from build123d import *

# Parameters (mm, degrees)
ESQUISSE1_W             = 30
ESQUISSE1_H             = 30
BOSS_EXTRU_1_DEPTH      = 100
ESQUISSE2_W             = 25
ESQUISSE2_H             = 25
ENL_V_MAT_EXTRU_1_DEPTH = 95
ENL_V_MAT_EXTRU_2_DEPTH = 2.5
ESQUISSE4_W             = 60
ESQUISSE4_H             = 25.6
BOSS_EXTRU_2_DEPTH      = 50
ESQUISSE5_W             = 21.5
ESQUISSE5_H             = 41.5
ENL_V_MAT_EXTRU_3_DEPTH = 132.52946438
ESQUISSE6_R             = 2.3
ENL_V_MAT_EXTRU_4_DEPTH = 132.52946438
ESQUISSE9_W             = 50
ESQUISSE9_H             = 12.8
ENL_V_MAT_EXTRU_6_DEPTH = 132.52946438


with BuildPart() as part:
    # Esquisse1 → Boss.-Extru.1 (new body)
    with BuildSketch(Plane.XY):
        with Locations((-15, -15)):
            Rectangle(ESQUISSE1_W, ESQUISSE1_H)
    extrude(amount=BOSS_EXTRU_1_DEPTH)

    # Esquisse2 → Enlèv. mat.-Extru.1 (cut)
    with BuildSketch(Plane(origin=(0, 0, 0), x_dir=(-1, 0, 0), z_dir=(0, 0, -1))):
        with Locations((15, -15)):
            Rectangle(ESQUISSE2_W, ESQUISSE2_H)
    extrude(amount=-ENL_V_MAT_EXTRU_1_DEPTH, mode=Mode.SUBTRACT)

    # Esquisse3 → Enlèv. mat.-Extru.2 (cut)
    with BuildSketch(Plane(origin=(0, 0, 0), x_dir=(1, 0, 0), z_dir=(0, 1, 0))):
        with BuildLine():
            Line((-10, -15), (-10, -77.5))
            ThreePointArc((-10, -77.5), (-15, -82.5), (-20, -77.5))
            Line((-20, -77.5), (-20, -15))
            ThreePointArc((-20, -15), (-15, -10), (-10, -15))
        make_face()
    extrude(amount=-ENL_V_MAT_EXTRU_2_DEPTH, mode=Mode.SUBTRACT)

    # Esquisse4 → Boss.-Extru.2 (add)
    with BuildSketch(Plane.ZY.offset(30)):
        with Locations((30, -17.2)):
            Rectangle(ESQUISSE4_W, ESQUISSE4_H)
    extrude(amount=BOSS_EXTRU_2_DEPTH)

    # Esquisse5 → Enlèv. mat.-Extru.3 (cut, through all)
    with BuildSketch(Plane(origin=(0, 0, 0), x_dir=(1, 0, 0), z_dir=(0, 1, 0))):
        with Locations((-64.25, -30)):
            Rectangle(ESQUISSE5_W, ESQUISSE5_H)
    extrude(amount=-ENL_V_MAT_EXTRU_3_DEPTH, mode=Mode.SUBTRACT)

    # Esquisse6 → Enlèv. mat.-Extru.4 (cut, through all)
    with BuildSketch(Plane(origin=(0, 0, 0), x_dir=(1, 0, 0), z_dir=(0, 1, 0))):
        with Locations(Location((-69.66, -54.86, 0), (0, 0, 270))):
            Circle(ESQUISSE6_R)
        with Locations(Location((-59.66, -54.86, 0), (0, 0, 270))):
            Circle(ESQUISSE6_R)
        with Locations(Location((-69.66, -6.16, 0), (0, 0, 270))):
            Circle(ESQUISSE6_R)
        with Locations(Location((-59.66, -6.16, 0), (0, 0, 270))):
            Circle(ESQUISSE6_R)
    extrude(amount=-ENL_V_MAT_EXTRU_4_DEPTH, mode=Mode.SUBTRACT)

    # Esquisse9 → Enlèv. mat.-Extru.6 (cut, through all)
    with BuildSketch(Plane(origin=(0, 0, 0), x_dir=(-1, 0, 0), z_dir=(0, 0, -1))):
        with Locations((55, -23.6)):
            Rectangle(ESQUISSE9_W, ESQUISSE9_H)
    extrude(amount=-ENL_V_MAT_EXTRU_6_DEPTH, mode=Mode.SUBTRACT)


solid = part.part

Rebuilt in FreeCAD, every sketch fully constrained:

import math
import FreeCAD as App
import Part
import Sketcher

V = App.Vector
Q = App.Units.Quantity


def add_polygon(sketch, points):
    """Adds a closed chain of lines whose ends are joined by coincident constraints."""
    first, n = sketch.GeometryCount, len(points)
    for a, b in zip(points, points[1:] + points[:1]):
        sketch.addGeometry(Part.LineSegment(App.Vector(*a, 0), App.Vector(*b, 0)), False)
    for i in range(n):
        sketch.addConstraint(Sketcher.Constraint("Coincident", first + i, 2, first + (i + 1) % n, 1))

doc = App.newDocument("Part")
body = doc.addObject("PartDesign::Body", "Body")

# Sketch on XY plane
sketch1 = doc.addObject("Sketcher::SketchObject", "Sketch")
body.addObject(sketch1)
sketch1.AttachmentSupport = (doc.XY_Plane, [""])
sketch1.MapMode = "FlatFace"
add_polygon(sketch1, [(-30, 0), (-30, -30), (0, -30), (0, 0)])  # lines 0-3
sketch1.addConstraint([
    Sketcher.Constraint("Vertical", 0),
    Sketcher.Constraint("Horizontal", 1),
    Sketcher.Constraint("Vertical", 2),
    Sketcher.Constraint("Horizontal", 3),
    Sketcher.Constraint("Coincident", 2, 2, -1, 1),
    Sketcher.Constraint("Equal", 3, 0),
    Sketcher.Constraint("DistanceX", 1, 1, 1, 2, Q("30 mm")),
])
pad1 = doc.addObject("PartDesign::Pad", "Pad")
body.addObject(pad1)
pad1.Profile = sketch1
pad1.Length = 100

# Sketch on XY plane
sketch2 = doc.addObject("Sketcher::SketchObject", "Sketch001")
body.addObject(sketch2)
sketch2.AttachmentSupport = (doc.XY_Plane, [""])
sketch2.MapMode = "FlatFace"
add_polygon(sketch2, [(-2, -2), (-2, -28), (-28, -28), (-28, -2)])  # lines 0-3
sketch2.addConstraint([
    Sketcher.Constraint("Vertical", 0),
    Sketcher.Constraint("Horizontal", 1),
    Sketcher.Constraint("Vertical", 2),
    Sketcher.Constraint("Horizontal", 3),
    Sketcher.Constraint("Equal", 3, 0),
    Sketcher.Constraint("DistanceX", 1, 2, 1, 1, Q("25 mm")),
    Sketcher.Constraint("DistanceX", 0, 2, -1, 1, Q("2.5 mm")),
    Sketcher.Constraint("DistanceY", 0, 2, -1, 1, Q("27.5 mm")),
])
pocket1 = doc.addObject("PartDesign::Pocket", "Pocket")
body.addObject(pocket1)
pocket1.Profile = sketch2
pocket1.Length = 95
pocket1.Reversed = True

# Sketch on XZ plane
sketch3 = doc.addObject("Sketcher::SketchObject", "Sketch002")
body.addObject(sketch3)
sketch3.AttachmentSupport = (doc.XZ_Plane, [""])
sketch3.MapMode = "FlatFace"
sketch3.addGeometry([
    Part.LineSegment(V(-10, 78, 0), V(-10, 15, 0)),
    Part.ArcOfCircle(Part.Circle(V(-15, 15, 0), V(0, 0, 1), 5), math.radians(180), math.radians(360)),
    Part.LineSegment(V(-20, 15, 0), V(-20, 78, 0)),
    Part.ArcOfCircle(Part.Circle(V(-15, 78, 0), V(0, 0, 1), 5), math.radians(0), math.radians(180)),
], False)
sketch3.addConstraint([
    Sketcher.Constraint("Tangent", 0, 2, 1, 2),
    Sketcher.Constraint("Tangent", 1, 1, 2, 1),
    Sketcher.Constraint("Tangent", 2, 2, 3, 2),
    Sketcher.Constraint("Tangent", 3, 1, 0, 1),
    Sketcher.Constraint("Vertical", 0),
    Sketcher.Constraint("Vertical", 2),
    Sketcher.Constraint("Radius", 1, Q("5 mm")),
    Sketcher.Constraint("DistanceY", 0, 2, 0, 1, Q("62.5 mm")),
    Sketcher.Constraint("DistanceX", 1, 3, -1, 1, Q("15 mm")),
    Sketcher.Constraint("DistanceY", -1, 1, 1, 3, Q("15 mm")),
])
pocket2 = doc.addObject("PartDesign::Pocket", "Pocket001")
body.addObject(pocket2)
pocket2.Profile = sketch3
pocket2.Length = 2.5
pocket2.Reversed = True

# Sketch on YZ plane
sketch4 = doc.addObject("Sketcher::SketchObject", "Sketch003")
body.addObject(sketch4)
sketch4.AttachmentSupport = (doc.YZ_Plane, [""])
sketch4.MapMode = "FlatFace"
sketch4.AttachmentOffset = App.Placement(V(0, 0, -30), App.Rotation())
add_polygon(sketch4, [(-4, 0), (-30, 0), (-30, 60), (-4, 60)])  # lines 0-3
sketch4.addConstraint([
    Sketcher.Constraint("Horizontal", 0),
    Sketcher.Constraint("Vertical", 1),
    Sketcher.Constraint("Horizontal", 2),
    Sketcher.Constraint("Vertical", 3),
    Sketcher.Constraint("PointOnObject", 0, 2, -1),
    Sketcher.Constraint("DistanceY", 1, 1, 1, 2, Q("60 mm")),
    Sketcher.Constraint("DistanceX", 0, 2, 0, 1, Q("25.6 mm")),
    Sketcher.Constraint("DistanceX", 0, 2, -1, 1, Q("30 mm")),
])
pad2 = doc.addObject("PartDesign::Pad", "Pad001")
body.addObject(pad2)
pad2.Profile = sketch4
pad2.Length = 50
pad2.Reversed = True

# Sketch on XZ plane
sketch5 = doc.addObject("Sketcher::SketchObject", "Sketch004")
body.addObject(sketch5)
sketch5.AttachmentSupport = (doc.XZ_Plane, [""])
sketch5.MapMode = "FlatFace"
add_polygon(sketch5, [(-75, 9), (-75, 51), (-54, 51), (-54, 9)])  # lines 0-3
sketch5.addConstraint([
    Sketcher.Constraint("Vertical", 0),
    Sketcher.Constraint("Horizontal", 1),
    Sketcher.Constraint("Vertical", 2),
    Sketcher.Constraint("Horizontal", 3),
    Sketcher.Constraint("DistanceX", 1, 1, 1, 2, Q("21.5 mm")),
    Sketcher.Constraint("DistanceY", 0, 1, 0, 2, Q("41.5 mm")),
    Sketcher.Constraint("DistanceX", 0, 2, -1, 1, Q("75 mm")),
    Sketcher.Constraint("DistanceY", -1, 1, 0, 2, Q("50.75 mm")),
])
pocket3 = doc.addObject("PartDesign::Pocket", "Pocket002")
body.addObject(pocket3)
pocket3.Profile = sketch5
pocket3.Type = "ThroughAll"
pocket3.Reversed = True

# Sketch on XZ plane
sketch6 = doc.addObject("Sketcher::SketchObject", "Sketch005")
body.addObject(sketch6)
sketch6.AttachmentSupport = (doc.XZ_Plane, [""])
sketch6.MapMode = "FlatFace"
sketch6.addGeometry([
    Part.Circle(V(-69.7, 54.9, 0), V(0, 0, 1), 2.3),
    Part.Circle(V(-59.7, 54.9, 0), V(0, 0, 1), 2.3),
    Part.Circle(V(-69.7, 6.2, 0), V(0, 0, 1), 2.3),
    Part.Circle(V(-59.7, 6.2, 0), V(0, 0, 1), 2.3),
], False)
sketch6.addConstraint([
    Sketcher.Constraint("Equal", 0, 1),
    Sketcher.Constraint("Equal", 1, 2),
    Sketcher.Constraint("Equal", 2, 3),
    Sketcher.Constraint("Horizontal", 0, 3, 1, 3),
    Sketcher.Constraint("Horizontal", 2, 3, 3, 3),
    Sketcher.Constraint("Vertical", 0, 3, 2, 3),
    Sketcher.Constraint("Vertical", 1, 3, 3, 3),
    Sketcher.Constraint("Diameter", 0, Q("4.6 mm")),
    Sketcher.Constraint("DistanceX", 0, 3, 1, 3, Q("10 mm")),
    Sketcher.Constraint("DistanceY", 2, 3, 0, 3, Q("48.7 mm")),
    Sketcher.Constraint("DistanceX", 0, 3, -1, 1, Q("69.66 mm")),
    Sketcher.Constraint("DistanceY", -1, 1, 0, 3, Q("54.86 mm")),
])
pocket4 = doc.addObject("PartDesign::Pocket", "Pocket003")
body.addObject(pocket4)
pocket4.Profile = sketch6
pocket4.Type = "ThroughAll"
pocket4.Reversed = True

# Sketch on XY plane
sketch7 = doc.addObject("Sketcher::SketchObject", "Sketch006")
body.addObject(sketch7)
sketch7.AttachmentSupport = (doc.XY_Plane, [""])
sketch7.MapMode = "FlatFace"
add_polygon(sketch7, [(-30, -17), (-30, -30), (-80, -30), (-80, -17)])  # lines 0-3
sketch7.addConstraint([
    Sketcher.Constraint("Vertical", 0),
    Sketcher.Constraint("Horizontal", 1),
    Sketcher.Constraint("Vertical", 2),
    Sketcher.Constraint("Horizontal", 3),
    Sketcher.Constraint("DistanceX", 1, 2, 1, 1, Q("50 mm")),
    Sketcher.Constraint("DistanceY", 0, 2, 0, 1, Q("12.8 mm")),
    Sketcher.Constraint("DistanceX", 0, 2, -1, 1, Q("30 mm")),
    Sketcher.Constraint("DistanceY", 0, 2, -1, 1, Q("30 mm")),
])
pocket5 = doc.addObject("PartDesign::Pocket", "Pocket004")
body.addObject(pocket5)
pocket5.Profile = sketch7
pocket5.Type = "ThroughAll"
pocket5.Reversed = True

doc.recompute()
